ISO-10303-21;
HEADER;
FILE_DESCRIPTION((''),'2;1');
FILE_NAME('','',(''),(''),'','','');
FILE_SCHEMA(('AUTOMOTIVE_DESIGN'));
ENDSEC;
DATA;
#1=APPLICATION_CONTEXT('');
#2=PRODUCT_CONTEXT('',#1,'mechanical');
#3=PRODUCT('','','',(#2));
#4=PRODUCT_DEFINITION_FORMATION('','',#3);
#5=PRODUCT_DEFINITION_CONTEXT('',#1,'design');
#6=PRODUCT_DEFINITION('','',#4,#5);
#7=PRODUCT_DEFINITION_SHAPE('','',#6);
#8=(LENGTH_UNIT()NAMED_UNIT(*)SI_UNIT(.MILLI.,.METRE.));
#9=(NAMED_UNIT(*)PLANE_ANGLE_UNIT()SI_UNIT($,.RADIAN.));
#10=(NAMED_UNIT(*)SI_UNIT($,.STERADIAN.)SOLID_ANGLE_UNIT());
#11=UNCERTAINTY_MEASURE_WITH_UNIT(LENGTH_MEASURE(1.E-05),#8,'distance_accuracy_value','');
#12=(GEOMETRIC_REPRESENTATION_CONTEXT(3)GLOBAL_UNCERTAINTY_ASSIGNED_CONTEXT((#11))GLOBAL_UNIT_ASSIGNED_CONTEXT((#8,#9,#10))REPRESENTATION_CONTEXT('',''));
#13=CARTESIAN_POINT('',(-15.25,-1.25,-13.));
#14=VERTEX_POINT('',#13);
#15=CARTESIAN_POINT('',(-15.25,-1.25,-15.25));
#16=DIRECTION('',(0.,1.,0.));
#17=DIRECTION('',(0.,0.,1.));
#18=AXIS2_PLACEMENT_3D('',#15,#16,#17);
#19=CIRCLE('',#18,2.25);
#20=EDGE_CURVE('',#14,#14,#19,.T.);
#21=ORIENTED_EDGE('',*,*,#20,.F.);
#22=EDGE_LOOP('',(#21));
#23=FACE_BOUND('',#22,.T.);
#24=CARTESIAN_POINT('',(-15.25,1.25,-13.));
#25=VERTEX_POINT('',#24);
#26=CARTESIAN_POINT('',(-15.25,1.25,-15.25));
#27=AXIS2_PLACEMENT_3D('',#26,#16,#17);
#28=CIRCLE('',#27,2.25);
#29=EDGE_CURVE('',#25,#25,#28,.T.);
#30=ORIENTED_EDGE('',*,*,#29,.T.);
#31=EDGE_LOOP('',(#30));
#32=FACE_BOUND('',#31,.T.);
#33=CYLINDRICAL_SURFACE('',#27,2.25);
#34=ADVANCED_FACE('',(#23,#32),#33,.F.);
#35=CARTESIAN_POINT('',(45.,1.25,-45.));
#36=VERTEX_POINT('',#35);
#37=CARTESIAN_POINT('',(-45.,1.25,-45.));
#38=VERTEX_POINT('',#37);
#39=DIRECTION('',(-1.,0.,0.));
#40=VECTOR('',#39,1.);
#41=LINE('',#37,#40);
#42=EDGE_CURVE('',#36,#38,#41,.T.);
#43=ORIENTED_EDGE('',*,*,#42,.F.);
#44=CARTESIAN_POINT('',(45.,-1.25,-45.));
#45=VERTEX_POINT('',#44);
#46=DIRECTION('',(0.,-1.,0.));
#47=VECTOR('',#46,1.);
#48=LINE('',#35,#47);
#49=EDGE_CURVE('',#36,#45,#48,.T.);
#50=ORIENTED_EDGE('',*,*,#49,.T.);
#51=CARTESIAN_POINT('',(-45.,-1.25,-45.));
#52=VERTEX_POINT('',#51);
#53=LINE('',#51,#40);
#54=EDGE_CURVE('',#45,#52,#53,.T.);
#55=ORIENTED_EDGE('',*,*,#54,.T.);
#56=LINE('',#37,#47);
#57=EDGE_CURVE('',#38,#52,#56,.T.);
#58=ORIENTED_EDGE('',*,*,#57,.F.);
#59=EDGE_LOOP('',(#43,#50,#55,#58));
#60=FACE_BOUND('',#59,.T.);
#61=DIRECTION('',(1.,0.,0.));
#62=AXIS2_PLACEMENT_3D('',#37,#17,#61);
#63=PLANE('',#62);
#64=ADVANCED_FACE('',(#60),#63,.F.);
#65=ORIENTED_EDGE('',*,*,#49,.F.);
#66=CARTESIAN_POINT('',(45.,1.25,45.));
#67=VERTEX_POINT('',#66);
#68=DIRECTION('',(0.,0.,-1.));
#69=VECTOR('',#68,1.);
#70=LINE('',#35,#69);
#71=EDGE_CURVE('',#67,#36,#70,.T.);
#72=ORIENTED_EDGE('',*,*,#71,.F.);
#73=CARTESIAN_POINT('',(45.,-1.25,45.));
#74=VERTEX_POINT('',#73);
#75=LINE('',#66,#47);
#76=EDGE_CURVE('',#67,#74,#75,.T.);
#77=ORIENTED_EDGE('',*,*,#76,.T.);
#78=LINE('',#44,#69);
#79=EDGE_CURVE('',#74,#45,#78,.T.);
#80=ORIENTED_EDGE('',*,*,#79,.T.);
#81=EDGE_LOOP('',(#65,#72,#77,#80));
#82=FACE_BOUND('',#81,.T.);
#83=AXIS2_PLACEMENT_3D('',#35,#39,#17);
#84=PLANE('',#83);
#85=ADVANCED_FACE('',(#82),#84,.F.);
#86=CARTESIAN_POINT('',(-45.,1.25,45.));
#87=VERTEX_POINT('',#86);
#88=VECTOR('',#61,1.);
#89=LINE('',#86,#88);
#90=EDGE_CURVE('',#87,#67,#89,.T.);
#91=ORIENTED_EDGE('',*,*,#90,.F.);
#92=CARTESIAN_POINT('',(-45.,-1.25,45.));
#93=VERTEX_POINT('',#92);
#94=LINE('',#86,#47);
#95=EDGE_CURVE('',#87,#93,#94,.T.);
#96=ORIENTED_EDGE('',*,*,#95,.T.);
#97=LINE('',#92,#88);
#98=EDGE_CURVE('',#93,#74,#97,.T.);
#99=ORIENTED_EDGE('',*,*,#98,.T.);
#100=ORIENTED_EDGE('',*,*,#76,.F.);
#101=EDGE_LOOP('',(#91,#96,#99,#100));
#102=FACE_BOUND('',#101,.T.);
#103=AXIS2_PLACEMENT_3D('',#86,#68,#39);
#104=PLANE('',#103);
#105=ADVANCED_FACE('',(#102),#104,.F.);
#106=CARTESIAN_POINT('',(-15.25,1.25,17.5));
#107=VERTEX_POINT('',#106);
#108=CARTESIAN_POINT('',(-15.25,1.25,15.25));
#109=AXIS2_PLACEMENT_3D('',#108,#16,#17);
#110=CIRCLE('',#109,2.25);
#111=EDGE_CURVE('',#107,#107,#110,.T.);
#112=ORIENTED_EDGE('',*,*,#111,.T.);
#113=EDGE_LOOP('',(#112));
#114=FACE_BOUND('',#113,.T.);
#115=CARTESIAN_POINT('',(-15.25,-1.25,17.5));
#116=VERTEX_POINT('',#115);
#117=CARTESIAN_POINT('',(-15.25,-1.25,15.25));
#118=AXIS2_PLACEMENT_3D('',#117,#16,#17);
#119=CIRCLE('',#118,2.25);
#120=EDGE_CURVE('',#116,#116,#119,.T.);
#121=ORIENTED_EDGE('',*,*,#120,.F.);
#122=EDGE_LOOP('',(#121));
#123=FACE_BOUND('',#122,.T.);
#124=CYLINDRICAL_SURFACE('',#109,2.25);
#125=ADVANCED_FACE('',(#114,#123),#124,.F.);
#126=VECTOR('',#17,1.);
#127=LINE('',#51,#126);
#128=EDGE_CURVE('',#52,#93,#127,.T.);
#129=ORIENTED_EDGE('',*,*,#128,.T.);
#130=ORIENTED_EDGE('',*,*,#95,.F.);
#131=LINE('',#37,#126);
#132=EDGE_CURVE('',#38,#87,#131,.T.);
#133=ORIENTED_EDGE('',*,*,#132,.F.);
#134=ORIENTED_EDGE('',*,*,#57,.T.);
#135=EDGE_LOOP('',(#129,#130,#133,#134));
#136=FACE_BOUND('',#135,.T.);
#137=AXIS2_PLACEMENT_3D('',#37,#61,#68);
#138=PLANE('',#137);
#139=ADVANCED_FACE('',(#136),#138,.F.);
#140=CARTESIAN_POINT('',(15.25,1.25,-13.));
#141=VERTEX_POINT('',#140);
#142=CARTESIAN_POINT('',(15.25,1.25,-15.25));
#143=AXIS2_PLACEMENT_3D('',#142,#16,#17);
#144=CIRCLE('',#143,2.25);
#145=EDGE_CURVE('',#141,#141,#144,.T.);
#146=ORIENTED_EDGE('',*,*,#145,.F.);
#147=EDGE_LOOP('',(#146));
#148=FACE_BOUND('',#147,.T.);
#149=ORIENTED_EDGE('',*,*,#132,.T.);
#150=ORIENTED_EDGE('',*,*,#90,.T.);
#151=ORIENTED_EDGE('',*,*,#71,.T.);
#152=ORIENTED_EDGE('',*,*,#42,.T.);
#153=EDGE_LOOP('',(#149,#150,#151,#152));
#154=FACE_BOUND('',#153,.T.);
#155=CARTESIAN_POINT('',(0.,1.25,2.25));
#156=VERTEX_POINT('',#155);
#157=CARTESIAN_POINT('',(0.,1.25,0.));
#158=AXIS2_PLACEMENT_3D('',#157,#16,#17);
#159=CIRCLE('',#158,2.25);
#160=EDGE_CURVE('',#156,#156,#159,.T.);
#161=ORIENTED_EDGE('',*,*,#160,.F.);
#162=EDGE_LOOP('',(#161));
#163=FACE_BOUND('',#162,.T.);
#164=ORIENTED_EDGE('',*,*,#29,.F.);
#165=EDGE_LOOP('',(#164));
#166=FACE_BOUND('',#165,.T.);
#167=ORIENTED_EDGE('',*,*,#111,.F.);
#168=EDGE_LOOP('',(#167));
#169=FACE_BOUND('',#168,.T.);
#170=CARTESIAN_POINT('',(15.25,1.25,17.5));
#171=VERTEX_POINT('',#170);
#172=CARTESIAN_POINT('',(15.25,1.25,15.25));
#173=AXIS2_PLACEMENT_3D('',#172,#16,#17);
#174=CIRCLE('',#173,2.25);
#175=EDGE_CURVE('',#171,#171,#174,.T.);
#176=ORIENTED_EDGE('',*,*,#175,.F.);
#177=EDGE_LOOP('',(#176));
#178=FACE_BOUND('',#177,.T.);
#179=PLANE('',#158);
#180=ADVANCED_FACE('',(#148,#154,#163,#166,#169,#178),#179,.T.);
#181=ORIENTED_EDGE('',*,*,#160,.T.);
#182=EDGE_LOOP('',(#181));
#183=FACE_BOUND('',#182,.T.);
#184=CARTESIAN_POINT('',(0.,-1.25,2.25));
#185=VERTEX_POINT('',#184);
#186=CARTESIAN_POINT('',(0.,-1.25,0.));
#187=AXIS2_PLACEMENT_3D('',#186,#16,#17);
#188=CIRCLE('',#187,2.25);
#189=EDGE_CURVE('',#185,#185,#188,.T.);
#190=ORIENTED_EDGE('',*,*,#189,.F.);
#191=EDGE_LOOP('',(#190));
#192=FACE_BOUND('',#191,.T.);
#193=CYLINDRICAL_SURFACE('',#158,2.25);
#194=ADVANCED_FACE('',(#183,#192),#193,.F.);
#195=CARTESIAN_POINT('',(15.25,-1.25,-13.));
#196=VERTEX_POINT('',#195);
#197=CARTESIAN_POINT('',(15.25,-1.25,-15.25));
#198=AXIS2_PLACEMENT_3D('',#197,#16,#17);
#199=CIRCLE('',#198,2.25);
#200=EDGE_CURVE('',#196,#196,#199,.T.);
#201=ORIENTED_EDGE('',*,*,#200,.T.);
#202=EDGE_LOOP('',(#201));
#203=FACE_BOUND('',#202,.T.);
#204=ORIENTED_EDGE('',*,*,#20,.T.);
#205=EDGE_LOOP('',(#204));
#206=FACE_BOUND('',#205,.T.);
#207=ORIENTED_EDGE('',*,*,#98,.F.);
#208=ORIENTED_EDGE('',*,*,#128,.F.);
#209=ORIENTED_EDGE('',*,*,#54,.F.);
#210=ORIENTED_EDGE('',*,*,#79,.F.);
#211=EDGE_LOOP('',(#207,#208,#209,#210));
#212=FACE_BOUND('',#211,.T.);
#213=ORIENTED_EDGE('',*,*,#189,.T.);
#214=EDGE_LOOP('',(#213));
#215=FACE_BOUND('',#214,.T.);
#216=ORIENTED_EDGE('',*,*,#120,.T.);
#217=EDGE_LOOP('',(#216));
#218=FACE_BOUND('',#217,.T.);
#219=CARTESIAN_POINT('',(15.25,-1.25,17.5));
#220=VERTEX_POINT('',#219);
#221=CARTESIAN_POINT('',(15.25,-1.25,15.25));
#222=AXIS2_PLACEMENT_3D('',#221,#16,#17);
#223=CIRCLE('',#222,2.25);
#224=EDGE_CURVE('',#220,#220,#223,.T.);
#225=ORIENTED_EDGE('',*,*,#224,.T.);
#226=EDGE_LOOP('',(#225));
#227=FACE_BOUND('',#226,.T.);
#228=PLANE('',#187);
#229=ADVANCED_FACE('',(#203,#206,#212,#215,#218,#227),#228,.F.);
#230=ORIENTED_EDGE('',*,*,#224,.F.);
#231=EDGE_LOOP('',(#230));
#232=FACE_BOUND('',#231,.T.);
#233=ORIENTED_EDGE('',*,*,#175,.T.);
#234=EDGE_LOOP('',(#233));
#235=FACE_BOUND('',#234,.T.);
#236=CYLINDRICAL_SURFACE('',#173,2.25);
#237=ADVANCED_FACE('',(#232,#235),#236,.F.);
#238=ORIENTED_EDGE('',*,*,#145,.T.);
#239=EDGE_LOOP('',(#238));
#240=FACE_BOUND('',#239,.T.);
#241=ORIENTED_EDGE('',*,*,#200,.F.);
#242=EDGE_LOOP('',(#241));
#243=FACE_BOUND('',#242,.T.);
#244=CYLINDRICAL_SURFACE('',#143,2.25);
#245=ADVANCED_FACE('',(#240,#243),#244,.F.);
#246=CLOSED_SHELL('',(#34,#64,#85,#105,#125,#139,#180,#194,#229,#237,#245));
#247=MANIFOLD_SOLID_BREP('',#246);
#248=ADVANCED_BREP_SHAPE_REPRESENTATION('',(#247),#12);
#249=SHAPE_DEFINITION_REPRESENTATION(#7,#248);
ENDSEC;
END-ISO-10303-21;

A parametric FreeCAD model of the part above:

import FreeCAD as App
import Part
import Sketcher
from FreeCAD import Vector
Q = App.Units.Quantity


def add_polygon(sketch, points):
    """Adds a closed chain of lines whose ends are joined by coincident constraints."""
    first, n = sketch.GeometryCount, len(points)
    for a, b in zip(points, points[1:] + points[:1]):
        sketch.addGeometry(Part.LineSegment(App.Vector(*a, 0), App.Vector(*b, 0)), False)
    for i in range(n):
        sketch.addConstraint(Sketcher.Constraint("Coincident", first + i, 2, first + (i + 1) % n, 1))

doc = App.newDocument("Part")
body = doc.addObject("PartDesign::Body", "Body")

# Sketch on XZ plane
sketch1 = body.newObject("Sketcher::SketchObject", "Sketch")
sketch1.AttachmentSupport = (doc.getObject("XZ_Plane"), [""])
sketch1.MapMode = "FlatFace"
add_polygon(sketch1, [(-45, -45), (-45, 45), (45, 45), (45, -45)])  # lines 0-3
sketch1.addConstraint([
    Sketcher.Constraint("Vertical", 0),
    Sketcher.Constraint("Horizontal", 1),
    Sketcher.Constraint("Vertical", 2),
    Sketcher.Constraint("Horizontal", 3),
    Sketcher.Constraint("Symmetric", 0, 2, 2, 2, -1, 1),
    Sketcher.Constraint("Equal", 3, 0),
    Sketcher.Constraint("DistanceX", 1, 1, 1, 2, Q("90 mm")),
])
pad1 = body.newObject("PartDesign::Pad", "Pad")
pad1.Profile = sketch1
pad1.Length = 2.5
pad1.Midplane = True

# Sketch on XZ plane
sketch2 = body.newObject("Sketcher::SketchObject", "Sketch001")
sketch2.AttachmentSupport = (doc.getObject("XZ_Plane"), [""])
sketch2.MapMode = "FlatFace"
sketch2.AttachmentOffset = App.Placement(Vector(0, 0, -1.25), App.Rotation())
sketch2.addGeometry([
    Part.Circle(Vector(0, 0, 0), Vector(0, 0, 1), 2.25),  # 0
    Part.Circle(Vector(15.25, -15.25, 0), Vector(0, 0, 1), 2.25),  # 1
    Part.Circle(Vector(-15.25, 15.25, 0), Vector(0, 0, 1), 2.25),  # 2
    Part.Circle(Vector(-15.25, -15.25, 0), Vector(0, 0, 1), 2.25),  # 3
    Part.Circle(Vector(15.25, 15.25, 0), Vector(0, 0, 1), 2.25),  # 4
], False)
sketch2.addConstraint([
    Sketcher.Constraint("Coincident", 0, 3, -1, 1),
    Sketcher.Constraint("Equal", 0, 1),
    Sketcher.Constraint("Equal", 1, 2),
    Sketcher.Constraint("Equal", 2, 3),
    Sketcher.Constraint("Equal", 3, 4),
    Sketcher.Constraint("Symmetric", 1, 3, 2, 3, -1, 1),
    Sketcher.Constraint("Symmetric", 3, 3, 4, 3, -1, 1),
    Sketcher.Constraint("Symmetric", 1, 3, 3, 3, -2),
    Sketcher.Constraint("Diameter", 0, Q("4.5 mm")),
    Sketcher.Constraint("DistanceX", 2, 3, 1, 3, Q("30.5 mm")),
    Sketcher.Constraint("DistanceY", 1, 3, 2, 3, Q("30.5 mm")),
])
doc.recompute()
hole = body.newObject("PartDesign::Hole", "Hole")
hole.Profile = sketch2
hole.ThreadType = "None"
hole.Diameter = 4.5
hole.DepthType = "Dimension"
hole.Depth = 5.2
hole.DrillPoint = "Angled"
hole.DrillPointAngle = 118
hole.Reversed = True

doc.recompute()
